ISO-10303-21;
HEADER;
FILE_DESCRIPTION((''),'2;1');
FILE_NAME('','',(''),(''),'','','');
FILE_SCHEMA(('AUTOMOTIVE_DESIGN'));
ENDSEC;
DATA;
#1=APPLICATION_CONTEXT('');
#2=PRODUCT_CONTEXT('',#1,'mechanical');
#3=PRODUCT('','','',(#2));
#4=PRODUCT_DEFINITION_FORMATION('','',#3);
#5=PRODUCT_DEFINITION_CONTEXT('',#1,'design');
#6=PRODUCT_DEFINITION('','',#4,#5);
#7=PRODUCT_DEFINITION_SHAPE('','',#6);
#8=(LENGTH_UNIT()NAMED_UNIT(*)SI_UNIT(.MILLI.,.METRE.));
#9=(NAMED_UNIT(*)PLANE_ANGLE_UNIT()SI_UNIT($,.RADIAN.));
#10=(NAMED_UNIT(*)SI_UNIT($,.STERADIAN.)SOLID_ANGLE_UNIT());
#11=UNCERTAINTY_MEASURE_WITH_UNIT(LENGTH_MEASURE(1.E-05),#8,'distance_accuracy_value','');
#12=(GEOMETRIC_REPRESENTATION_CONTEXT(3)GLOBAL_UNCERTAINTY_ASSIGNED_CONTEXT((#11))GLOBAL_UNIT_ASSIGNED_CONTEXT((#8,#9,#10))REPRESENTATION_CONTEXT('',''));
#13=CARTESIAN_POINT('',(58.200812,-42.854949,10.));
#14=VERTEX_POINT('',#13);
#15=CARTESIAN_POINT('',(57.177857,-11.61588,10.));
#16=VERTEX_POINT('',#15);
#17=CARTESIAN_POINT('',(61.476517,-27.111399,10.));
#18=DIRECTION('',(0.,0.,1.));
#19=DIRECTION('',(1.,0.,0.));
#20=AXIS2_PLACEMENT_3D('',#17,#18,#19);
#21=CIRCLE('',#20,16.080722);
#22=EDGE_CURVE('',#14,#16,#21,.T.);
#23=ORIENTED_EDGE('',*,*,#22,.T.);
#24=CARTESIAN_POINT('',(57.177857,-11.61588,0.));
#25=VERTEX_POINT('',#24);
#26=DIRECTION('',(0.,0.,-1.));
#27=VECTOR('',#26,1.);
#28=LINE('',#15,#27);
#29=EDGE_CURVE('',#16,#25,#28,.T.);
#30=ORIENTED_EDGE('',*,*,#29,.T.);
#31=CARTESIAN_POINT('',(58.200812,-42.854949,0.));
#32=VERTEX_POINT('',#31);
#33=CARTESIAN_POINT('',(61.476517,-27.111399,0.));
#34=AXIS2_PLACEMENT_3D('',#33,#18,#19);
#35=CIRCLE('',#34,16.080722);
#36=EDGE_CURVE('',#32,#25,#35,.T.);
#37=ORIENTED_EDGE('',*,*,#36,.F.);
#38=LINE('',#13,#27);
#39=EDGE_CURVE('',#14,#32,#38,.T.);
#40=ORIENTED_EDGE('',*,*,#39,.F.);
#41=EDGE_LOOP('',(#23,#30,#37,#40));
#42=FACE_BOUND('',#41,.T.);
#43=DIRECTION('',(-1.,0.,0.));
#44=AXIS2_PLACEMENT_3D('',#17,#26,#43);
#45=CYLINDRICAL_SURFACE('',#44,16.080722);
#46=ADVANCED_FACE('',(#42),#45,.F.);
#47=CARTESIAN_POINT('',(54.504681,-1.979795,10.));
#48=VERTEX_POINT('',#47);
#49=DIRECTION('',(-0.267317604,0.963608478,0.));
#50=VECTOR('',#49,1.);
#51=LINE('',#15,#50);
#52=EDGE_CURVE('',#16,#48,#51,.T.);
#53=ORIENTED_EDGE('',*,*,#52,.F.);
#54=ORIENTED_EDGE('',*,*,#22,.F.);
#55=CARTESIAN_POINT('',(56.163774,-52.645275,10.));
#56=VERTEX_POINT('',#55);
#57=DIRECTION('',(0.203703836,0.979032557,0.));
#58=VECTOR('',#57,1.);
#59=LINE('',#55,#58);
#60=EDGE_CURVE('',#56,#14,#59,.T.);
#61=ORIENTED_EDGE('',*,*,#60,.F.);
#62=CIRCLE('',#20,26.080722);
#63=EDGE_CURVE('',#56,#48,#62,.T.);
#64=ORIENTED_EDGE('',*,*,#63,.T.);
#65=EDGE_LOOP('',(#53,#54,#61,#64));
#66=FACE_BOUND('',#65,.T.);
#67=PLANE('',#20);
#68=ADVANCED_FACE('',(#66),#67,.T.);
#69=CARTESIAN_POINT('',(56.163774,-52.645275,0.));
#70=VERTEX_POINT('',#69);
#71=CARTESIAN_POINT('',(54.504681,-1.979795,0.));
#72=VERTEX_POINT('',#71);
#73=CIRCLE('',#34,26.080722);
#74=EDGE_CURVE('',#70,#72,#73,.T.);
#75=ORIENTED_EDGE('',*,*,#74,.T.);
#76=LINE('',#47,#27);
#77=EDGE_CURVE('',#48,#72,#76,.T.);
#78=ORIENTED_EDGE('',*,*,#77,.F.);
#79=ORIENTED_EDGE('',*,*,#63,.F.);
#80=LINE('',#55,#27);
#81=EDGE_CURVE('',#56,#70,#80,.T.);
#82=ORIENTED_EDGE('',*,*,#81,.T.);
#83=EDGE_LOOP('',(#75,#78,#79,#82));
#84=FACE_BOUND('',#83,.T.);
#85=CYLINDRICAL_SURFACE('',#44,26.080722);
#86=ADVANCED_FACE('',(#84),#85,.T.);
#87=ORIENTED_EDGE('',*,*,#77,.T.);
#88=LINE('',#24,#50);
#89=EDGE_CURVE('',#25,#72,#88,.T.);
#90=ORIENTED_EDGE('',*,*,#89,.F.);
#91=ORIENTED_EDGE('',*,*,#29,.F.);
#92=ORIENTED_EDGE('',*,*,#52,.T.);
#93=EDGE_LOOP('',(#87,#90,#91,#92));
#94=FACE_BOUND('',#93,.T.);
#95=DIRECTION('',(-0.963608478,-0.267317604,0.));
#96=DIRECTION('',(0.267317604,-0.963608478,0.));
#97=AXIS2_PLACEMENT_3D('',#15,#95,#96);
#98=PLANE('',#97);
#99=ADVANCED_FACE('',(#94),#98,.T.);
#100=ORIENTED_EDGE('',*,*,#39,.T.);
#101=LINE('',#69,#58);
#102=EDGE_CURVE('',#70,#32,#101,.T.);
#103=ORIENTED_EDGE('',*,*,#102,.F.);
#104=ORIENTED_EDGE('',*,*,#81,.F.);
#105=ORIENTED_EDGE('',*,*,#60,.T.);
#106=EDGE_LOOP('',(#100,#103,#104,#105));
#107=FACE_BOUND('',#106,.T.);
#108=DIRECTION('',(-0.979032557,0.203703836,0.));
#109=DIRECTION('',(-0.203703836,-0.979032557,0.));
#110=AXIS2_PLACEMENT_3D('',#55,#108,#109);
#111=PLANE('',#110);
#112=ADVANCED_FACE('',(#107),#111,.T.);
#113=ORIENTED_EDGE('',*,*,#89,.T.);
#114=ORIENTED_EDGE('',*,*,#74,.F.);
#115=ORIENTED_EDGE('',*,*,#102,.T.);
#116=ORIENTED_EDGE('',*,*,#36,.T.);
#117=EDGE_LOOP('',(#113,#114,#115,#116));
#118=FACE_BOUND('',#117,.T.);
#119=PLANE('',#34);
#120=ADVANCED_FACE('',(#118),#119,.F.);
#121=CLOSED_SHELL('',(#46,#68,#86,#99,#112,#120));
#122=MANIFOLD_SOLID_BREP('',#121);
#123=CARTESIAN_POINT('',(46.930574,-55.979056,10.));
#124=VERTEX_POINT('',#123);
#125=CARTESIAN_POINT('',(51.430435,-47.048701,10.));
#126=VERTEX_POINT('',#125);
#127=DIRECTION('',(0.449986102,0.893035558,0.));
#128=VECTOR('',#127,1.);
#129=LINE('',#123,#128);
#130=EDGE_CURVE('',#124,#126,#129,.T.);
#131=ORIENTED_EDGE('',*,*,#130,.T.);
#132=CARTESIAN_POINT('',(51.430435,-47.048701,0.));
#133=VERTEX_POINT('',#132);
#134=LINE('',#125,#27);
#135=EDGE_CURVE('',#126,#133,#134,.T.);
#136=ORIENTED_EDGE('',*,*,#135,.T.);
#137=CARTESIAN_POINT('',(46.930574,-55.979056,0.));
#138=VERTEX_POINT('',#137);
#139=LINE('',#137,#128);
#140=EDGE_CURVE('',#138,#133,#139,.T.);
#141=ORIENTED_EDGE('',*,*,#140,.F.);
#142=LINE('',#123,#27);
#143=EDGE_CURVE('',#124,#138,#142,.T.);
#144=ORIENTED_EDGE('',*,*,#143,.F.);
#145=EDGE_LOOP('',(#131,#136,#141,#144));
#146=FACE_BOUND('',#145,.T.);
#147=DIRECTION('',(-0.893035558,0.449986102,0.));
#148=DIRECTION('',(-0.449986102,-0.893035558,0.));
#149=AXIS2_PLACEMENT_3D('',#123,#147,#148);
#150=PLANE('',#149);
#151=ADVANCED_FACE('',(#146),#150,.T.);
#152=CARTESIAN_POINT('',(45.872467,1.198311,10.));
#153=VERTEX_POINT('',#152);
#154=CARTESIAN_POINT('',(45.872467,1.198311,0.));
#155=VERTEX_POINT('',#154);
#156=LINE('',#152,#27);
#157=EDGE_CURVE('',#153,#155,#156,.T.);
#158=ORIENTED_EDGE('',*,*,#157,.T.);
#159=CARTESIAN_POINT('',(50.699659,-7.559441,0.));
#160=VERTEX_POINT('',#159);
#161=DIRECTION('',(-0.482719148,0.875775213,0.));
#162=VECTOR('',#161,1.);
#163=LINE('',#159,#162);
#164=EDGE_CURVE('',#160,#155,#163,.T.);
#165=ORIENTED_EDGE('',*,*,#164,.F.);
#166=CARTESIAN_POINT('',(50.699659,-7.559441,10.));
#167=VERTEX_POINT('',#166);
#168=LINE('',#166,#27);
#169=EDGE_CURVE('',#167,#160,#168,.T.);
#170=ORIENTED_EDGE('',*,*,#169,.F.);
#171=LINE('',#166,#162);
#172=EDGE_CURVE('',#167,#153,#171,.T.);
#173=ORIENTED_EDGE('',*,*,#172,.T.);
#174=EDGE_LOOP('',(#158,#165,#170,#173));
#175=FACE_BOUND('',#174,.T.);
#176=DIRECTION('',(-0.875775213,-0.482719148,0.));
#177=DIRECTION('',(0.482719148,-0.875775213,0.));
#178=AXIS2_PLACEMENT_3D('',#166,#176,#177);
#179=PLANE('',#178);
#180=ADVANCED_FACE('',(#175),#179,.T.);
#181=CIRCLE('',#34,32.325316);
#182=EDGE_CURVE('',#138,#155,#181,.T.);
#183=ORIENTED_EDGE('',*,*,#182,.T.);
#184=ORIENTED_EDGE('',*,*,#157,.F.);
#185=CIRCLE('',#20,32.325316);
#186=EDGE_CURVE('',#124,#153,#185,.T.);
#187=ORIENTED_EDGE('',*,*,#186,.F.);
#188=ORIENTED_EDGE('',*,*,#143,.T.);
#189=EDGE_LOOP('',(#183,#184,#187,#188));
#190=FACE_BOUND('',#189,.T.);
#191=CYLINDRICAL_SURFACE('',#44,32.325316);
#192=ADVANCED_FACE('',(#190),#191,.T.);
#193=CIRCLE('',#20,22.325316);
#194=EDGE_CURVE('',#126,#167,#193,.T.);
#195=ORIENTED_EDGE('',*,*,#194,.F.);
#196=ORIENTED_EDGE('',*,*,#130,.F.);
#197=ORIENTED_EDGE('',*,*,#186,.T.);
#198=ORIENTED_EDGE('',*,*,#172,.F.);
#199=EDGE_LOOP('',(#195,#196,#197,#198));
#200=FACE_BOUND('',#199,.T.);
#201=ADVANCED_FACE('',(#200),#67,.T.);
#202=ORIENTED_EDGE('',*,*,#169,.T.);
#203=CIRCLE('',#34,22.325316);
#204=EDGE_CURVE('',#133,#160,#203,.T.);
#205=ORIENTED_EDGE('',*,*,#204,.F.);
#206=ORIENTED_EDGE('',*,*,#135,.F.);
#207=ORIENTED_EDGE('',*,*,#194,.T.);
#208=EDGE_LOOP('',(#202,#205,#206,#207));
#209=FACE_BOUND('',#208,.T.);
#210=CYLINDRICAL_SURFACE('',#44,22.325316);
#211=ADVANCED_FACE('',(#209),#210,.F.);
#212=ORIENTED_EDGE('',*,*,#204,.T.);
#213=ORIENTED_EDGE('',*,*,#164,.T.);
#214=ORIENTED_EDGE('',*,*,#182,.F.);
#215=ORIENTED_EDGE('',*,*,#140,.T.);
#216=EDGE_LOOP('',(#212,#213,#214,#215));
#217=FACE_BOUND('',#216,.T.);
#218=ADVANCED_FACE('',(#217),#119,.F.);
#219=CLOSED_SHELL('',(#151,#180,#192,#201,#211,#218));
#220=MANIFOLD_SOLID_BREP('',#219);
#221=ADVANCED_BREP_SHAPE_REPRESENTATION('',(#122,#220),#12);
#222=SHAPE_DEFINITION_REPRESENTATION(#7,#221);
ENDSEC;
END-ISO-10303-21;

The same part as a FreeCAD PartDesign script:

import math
import FreeCAD as App
import Part
import Sketcher
from FreeCAD import Vector
Q = App.Units.Quantity

doc = App.newDocument("Part")
body = doc.addObject("PartDesign::Body", "Body")

# Sketch on XY plane
sketch1 = body.newObject("Sketcher::SketchObject", "Sketch")
sketch1.AttachmentSupport = (doc.getObject("XY_Plane"), [""])
sketch1.MapMode = "FlatFace"
sketch1.addGeometry([
    Part.ArcOfCircle(Part.Circle(Vector(61, -27, 0), Vector(0, 0, 1), 22), math.radians(-117), math.radians(119)),
    Part.LineSegment(Vector(51, -47, 0), Vector(47, -56, 0)),
    Part.ArcOfCircle(Part.Circle(Vector(61, -27, 0), Vector(0, 0, 1), 32), math.radians(-117), math.radians(119)),
    Part.LineSegment(Vector(46, 1, 0), Vector(51, -8, 0)),
], False)
sketch1.addConstraint([
    Sketcher.Constraint("Coincident", 0, 1, 1, 1),
    Sketcher.Constraint("Coincident", 1, 2, 2, 1),
    Sketcher.Constraint("Coincident", 2, 2, 3, 1),
    Sketcher.Constraint("Coincident", 3, 2, 0, 2),
    Sketcher.Constraint("Coincident", 2, 3, 0, 3),
    Sketcher.Constraint("Distance", 1, Q("10 mm")),
    Sketcher.Constraint("Radius", 0, Q("22.325316 mm")),
    Sketcher.Constraint("DistanceY", 0, 3, -1, 1, Q("27.111399 mm")),
    Sketcher.Constraint("DistanceY", 0, 1, -1, 1, Q("47.048701 mm")),
    Sketcher.Constraint("DistanceY", -1, 1, 2, 2, Q("1.198311 mm")),
    Sketcher.Constraint("DistanceX", -1, 1, 3, 2, Q("50.699659 mm")),
    Sketcher.Constraint("DistanceY", 3, 2, -1, 1, Q("7.559441 mm")),
    Sketcher.Constraint("DistanceX", 1, 2, 0, 1, Q("4.499861 mm")),
])
pad1 = body.newObject("PartDesign::Pad", "Pad")
pad1.Profile = sketch1
pad1.Length = 10
body2 = doc.addObject("PartDesign::Body", "Body001")

# Sketch on XY plane
sketch2 = body2.newObject("Sketcher::SketchObject", "Sketch001")
sketch2.AttachmentSupport = (doc.getObject("XY_Plane001"), [""])
sketch2.MapMode = "FlatFace"
sketch2.addGeometry([
    Part.ArcOfCircle(Part.Circle(Vector(61, -27, 0), Vector(0, 0, 1), 16), math.radians(-102), math.radians(106)),
    Part.LineSegment(Vector(58, -43, 0), Vector(56, -53, 0)),
    Part.ArcOfCircle(Part.Circle(Vector(61, -27, 0), Vector(0, 0, 1), 26), math.radians(-102), math.radians(106)),
    Part.LineSegment(Vector(55, -2, 0), Vector(57, -12, 0)),
], False)
sketch2.addConstraint([
    Sketcher.Constraint("Coincident", 0, 1, 1, 1),
    Sketcher.Constraint("Coincident", 1, 2, 2, 1),
    Sketcher.Constraint("Coincident", 2, 2, 3, 1),
    Sketcher.Constraint("Coincident", 3, 2, 0, 2),
    Sketcher.Constraint("Coincident", 2, 3, 0, 3),
    Sketcher.Constraint("Distance", 1, Q("10 mm")),
    Sketcher.Constraint("Radius", 0, Q("16.080722 mm")),
    Sketcher.Constraint("DistanceY", 0, 3, -1, 1, Q("27.111399 mm")),
    Sketcher.Constraint("DistanceY", 0, 1, -1, 1, Q("42.854949 mm")),
    Sketcher.Constraint("DistanceX", -1, 1, 2, 2, Q("54.504681 mm")),
    Sketcher.Constraint("DistanceY", 3, 2, -1, 1, Q("11.61588 mm")),
    Sketcher.Constraint("DistanceX", 1, 2, 0, 1, Q("2.037038 mm")),
    Sketcher.Constraint("DistanceX", 2, 2, 0, 1, Q("3.696131 mm")),
])
pad2 = body2.newObject("PartDesign::Pad", "Pad001")
pad2.Profile = sketch2
pad2.Length = 10

doc.recompute()
